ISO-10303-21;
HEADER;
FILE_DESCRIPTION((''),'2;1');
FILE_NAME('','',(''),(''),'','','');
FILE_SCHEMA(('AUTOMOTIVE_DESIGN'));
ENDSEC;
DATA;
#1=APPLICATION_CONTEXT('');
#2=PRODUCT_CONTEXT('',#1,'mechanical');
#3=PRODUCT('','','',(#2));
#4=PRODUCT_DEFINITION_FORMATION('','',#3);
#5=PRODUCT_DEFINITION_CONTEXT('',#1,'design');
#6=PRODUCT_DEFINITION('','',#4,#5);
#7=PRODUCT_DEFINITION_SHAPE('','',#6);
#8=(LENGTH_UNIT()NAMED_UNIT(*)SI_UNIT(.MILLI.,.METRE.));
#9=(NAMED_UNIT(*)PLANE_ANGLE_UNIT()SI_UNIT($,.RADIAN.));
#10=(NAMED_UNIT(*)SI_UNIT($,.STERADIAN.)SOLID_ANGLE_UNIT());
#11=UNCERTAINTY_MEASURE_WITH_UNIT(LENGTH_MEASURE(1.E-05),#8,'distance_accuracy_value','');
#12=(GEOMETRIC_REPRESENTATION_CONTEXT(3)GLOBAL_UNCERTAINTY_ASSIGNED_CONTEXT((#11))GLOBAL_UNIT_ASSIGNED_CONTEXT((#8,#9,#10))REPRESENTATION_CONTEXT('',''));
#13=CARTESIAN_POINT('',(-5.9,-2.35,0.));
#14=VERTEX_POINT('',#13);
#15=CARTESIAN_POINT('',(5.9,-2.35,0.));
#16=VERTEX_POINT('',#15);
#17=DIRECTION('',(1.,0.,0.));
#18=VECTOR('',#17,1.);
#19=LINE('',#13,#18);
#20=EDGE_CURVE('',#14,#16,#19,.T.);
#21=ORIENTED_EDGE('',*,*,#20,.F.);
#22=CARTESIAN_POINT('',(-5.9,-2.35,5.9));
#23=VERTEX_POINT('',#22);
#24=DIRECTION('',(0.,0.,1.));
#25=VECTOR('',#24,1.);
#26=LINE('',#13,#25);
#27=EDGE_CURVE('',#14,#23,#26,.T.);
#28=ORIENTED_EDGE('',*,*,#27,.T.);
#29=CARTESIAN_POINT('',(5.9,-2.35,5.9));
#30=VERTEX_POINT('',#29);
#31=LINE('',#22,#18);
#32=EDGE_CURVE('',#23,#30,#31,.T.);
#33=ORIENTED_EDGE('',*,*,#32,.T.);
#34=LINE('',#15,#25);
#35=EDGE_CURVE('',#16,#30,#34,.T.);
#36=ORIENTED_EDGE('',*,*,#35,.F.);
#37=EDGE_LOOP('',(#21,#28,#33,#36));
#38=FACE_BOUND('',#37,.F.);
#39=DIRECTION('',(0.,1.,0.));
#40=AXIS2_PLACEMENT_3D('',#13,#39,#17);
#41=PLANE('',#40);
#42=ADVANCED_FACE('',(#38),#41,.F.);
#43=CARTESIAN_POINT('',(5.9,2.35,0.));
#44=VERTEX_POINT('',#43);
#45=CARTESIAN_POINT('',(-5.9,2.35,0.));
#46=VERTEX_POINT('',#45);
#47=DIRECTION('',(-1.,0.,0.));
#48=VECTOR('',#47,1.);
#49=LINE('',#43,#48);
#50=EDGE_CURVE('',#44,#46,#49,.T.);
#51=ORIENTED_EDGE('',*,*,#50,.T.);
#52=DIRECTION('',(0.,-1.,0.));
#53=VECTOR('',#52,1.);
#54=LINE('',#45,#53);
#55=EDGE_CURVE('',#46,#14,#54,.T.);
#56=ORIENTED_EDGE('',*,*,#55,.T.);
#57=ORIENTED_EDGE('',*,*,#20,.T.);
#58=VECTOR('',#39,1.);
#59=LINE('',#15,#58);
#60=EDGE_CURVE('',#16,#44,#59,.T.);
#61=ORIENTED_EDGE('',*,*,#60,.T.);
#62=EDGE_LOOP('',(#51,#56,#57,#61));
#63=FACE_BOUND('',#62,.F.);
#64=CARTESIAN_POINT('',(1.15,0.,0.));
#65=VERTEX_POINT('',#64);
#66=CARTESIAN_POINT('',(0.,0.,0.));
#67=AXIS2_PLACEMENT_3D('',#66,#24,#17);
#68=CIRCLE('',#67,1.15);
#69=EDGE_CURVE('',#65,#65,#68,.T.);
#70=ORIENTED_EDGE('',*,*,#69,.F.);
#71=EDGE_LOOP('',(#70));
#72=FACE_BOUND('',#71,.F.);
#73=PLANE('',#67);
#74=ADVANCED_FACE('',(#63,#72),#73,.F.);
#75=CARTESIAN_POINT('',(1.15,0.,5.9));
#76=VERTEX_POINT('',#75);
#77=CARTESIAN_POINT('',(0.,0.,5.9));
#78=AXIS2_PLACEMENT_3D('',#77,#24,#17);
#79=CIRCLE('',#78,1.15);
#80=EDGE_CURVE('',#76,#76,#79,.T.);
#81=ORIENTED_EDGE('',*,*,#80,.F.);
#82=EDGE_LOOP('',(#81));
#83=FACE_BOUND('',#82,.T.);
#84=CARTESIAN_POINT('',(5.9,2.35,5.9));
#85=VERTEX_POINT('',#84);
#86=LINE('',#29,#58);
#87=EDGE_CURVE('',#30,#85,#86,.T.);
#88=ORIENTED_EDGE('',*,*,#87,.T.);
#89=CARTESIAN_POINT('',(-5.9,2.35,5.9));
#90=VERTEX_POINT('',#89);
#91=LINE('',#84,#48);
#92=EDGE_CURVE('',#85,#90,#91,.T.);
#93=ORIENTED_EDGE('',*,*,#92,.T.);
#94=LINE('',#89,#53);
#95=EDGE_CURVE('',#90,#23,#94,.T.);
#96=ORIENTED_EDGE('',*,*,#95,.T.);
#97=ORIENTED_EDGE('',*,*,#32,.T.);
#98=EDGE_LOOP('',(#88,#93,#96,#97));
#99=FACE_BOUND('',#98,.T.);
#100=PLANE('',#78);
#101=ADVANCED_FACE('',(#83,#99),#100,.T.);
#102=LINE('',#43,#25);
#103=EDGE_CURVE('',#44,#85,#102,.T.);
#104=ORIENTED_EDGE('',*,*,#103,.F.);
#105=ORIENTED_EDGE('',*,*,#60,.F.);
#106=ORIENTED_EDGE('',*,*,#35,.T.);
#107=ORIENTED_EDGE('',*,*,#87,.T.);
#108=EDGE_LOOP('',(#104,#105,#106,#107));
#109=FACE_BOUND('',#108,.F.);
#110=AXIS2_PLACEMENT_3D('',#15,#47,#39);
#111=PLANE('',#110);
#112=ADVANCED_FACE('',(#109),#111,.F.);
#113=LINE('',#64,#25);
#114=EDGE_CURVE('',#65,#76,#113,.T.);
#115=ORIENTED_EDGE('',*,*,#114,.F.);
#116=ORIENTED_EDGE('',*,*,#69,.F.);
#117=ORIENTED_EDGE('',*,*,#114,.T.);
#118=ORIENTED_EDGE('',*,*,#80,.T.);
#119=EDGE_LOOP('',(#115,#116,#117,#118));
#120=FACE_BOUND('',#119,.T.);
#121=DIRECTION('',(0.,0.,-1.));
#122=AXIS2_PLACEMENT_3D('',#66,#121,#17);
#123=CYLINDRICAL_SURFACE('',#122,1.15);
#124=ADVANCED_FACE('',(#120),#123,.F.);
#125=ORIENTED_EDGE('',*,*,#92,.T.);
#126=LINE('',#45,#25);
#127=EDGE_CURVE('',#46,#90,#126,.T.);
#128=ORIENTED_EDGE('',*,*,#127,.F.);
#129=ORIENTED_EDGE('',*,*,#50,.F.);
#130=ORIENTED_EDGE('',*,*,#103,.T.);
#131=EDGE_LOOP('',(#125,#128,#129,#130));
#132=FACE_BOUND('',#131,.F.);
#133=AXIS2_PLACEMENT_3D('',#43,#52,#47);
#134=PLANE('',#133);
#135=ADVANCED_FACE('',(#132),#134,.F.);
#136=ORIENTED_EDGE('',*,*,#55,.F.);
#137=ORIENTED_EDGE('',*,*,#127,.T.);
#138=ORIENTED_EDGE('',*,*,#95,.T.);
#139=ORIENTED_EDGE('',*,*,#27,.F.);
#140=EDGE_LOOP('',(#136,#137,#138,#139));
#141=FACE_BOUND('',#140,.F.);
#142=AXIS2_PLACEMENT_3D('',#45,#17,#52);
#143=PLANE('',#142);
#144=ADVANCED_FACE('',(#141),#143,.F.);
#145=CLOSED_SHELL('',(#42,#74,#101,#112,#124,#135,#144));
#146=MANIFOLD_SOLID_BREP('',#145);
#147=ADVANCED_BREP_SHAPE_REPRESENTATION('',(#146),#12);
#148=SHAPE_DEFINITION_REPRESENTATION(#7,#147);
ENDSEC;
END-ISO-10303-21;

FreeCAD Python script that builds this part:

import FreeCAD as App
import Part
import Sketcher
Q = App.Units.Quantity


def add_polygon(sketch, points):
    """Adds a closed chain of lines whose ends are joined by coincident constraints."""
    first, n = sketch.GeometryCount, len(points)
    for a, b in zip(points, points[1:] + points[:1]):
        sketch.addGeometry(Part.LineSegment(App.Vector(*a, 0), App.Vector(*b, 0)), False)
    for i in range(n):
        sketch.addConstraint(Sketcher.Constraint("Coincident", first + i, 2, first + (i + 1) % n, 1))

doc = App.newDocument("Part")
body = doc.addObject("PartDesign::Body", "Body")

# Sketch on XY plane
sketch1 = body.newObject("Sketcher::SketchObject", "Sketch")
sketch1.AttachmentSupport = (doc.getObject("XY_Plane"), [""])
sketch1.MapMode = "FlatFace"
add_polygon(sketch1, [(-5.9, 2.35), (-5.9, -2.35), (5.9, -2.35), (5.9, 2.35)])  # lines 0-3
sketch1.addGeometry(Part.Circle(App.Vector(0, 0, 0), App.Vector(0, 0, 1), 1.15), False)  # 4
sketch1.addConstraint(Sketcher.Constraint("Vertical", 0))
sketch1.addConstraint(Sketcher.Constraint("Horizontal", 1))
sketch1.addConstraint(Sketcher.Constraint("Vertical", 2))
sketch1.addConstraint(Sketcher.Constraint("Horizontal", 3))
sketch1.addConstraint(Sketcher.Constraint("Coincident", 4, 3, -1, 1))
sketch1.addConstraint(Sketcher.Constraint("Symmetric", 0, 2, 2, 2, -1, 1))
sketch1.addConstraint(Sketcher.Constraint("Diameter", 4, Q("2.3 mm")))
sketch1.addConstraint(Sketcher.Constraint("DistanceX", 1, 1, 1, 2, Q("11.8 mm")))
sketch1.addConstraint(Sketcher.Constraint("DistanceY", 0, 2, 0, 1, Q("4.7 mm")))
pad1 = body.newObject("PartDesign::Pad", "Pad")
pad1.Profile = sketch1
pad1.Length = 5.9

doc.recompute()
